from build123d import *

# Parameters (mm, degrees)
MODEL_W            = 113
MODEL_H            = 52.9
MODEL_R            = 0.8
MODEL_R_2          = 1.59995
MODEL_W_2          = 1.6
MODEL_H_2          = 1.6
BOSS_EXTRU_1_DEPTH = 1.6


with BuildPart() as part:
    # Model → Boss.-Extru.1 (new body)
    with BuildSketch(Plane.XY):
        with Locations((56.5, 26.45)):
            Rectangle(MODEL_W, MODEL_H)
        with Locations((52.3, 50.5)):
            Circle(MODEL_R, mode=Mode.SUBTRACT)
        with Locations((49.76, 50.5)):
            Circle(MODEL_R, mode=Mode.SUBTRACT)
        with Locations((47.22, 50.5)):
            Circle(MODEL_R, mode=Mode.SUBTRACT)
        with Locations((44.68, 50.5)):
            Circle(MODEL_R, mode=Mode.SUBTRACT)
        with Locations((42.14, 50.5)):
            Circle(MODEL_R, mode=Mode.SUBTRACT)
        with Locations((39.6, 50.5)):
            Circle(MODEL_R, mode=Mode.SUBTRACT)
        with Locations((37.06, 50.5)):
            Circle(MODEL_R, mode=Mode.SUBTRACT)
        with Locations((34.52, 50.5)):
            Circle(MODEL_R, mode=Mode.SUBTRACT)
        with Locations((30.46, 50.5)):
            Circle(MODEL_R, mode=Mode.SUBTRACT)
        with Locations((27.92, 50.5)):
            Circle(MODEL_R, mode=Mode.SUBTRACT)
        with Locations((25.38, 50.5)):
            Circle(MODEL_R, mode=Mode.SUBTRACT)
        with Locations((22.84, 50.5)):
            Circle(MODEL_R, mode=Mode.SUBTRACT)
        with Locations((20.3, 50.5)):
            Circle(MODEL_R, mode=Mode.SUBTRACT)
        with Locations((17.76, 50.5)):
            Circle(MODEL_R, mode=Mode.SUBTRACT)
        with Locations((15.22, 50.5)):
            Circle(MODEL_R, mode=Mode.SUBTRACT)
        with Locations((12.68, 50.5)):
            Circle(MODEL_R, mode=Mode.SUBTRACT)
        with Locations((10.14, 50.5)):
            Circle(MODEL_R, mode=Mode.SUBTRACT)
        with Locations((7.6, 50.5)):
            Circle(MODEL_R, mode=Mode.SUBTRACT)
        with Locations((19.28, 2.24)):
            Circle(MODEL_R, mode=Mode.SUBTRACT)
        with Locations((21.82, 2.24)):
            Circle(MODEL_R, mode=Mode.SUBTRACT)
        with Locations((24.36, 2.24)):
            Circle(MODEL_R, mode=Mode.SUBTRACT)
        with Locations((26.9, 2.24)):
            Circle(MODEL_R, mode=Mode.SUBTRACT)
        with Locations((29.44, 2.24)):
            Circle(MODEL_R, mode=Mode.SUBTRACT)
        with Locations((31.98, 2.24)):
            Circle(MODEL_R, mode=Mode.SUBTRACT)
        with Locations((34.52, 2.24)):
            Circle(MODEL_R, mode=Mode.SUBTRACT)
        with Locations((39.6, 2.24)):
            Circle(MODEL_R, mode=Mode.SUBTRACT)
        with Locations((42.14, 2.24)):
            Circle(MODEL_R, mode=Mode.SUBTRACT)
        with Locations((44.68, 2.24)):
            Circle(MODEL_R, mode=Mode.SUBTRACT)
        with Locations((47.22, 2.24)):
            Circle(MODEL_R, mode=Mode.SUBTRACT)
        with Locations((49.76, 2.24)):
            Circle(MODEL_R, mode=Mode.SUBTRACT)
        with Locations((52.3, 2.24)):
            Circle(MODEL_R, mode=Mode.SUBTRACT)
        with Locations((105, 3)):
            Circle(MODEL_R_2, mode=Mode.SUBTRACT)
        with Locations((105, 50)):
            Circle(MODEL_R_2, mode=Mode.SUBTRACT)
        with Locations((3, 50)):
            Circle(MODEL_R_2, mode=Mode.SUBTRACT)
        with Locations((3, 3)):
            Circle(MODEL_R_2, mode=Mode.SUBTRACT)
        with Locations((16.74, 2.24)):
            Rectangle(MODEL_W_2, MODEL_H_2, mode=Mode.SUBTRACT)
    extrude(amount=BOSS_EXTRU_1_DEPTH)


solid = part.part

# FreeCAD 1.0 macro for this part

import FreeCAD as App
import Part
import Sketcher
from FreeCAD import Vector
Q = App.Units.Quantity

doc = App.newDocument("Part")
body = doc.addObject("PartDesign::Body", "Body")

# Sketch on XY plane
sketch1 = doc.addObject("Sketcher::SketchObject", "Sketch")
body.addObject(sketch1)
sketch1.AttachmentSupport = (doc.XY_Plane, [""])
sketch1.MapMode = "FlatFace"
sketch1.addGeometry(Part.LineSegment(Vector(0, 52.9, 0), Vector(0, 0, 0)), False)
sketch1.addGeometry(Part.LineSegment(Vector(0, 0, 0), Vector(113, 0, 0)), False)
sketch1.addGeometry(Part.LineSegment(Vector(113, 0, 0), Vector(113, 52.9, 0)), False)
sketch1.addGeometry(Part.LineSegment(Vector(113, 52.9, 0), Vector(0, 52.9, 0)), False)
sketch1.addGeometry(Part.Circle(Vector(3, 3, 0), Vector(0, 0, 1), 1.6), False)
sketch1.addGeometry(Part.LineSegment(Vector(17.5, 1.4, 0), Vector(15.9, 1.4, 0)), False)
sketch1.addGeometry(Part.LineSegment(Vector(15.9, 1.4, 0), Vector(15.9, 3, 0)), False)
sketch1.addGeometry(Part.LineSegment(Vector(15.9, 3, 0), Vector(17.5, 3, 0)), False)
sketch1.addGeometry(Part.LineSegment(Vector(17.5, 3, 0), Vector(17.5, 1.4, 0)), False)
sketch1.addGeometry(Part.Circle(Vector(19.3, 2.2, 0), Vector(0, 0, 1), 0.8), False)
sketch1.addGeometry(Part.Circle(Vector(21.8, 2.2, 0), Vector(0, 0, 1), 0.8), False)
sketch1.addGeometry(Part.Circle(Vector(24.4, 2.2, 0), Vector(0, 0, 1), 0.8), False)
sketch1.addGeometry(Part.Circle(Vector(26.9, 2.2, 0), Vector(0, 0, 1), 0.8), False)
sketch1.addGeometry(Part.Circle(Vector(29.4, 2.2, 0), Vector(0, 0, 1), 0.8), False)
sketch1.addGeometry(Part.Circle(Vector(32, 2.2, 0), Vector(0, 0, 1), 0.8), False)
sketch1.addGeometry(Part.Circle(Vector(34.5, 2.2, 0), Vector(0, 0, 1), 0.8), False)
sketch1.addGeometry(Part.Circle(Vector(39.6, 2.2, 0), Vector(0, 0, 1), 0.8), False)
sketch1.addGeometry(Part.Circle(Vector(42.1, 2.2, 0), Vector(0, 0, 1), 0.8), False)
sketch1.addGeometry(Part.Circle(Vector(44.7, 2.2, 0), Vector(0, 0, 1), 0.8), False)
sketch1.addGeometry(Part.Circle(Vector(47.2, 2.2, 0), Vector(0, 0, 1), 0.8), False)
sketch1.addGeometry(Part.Circle(Vector(49.8, 2.2, 0), Vector(0, 0, 1), 0.8), False)
sketch1.addGeometry(Part.Circle(Vector(52.3, 2.2, 0), Vector(0, 0, 1), 0.8), False)
sketch1.addGeometry(Part.Circle(Vector(105, 3, 0), Vector(0, 0, 1), 1.6), False)
sketch1.addGeometry(Part.Circle(Vector(3, 50, 0), Vector(0, 0, 1), 1.6), False)
sketch1.addGeometry(Part.Circle(Vector(7.6, 50.5, 0), Vector(0, 0, 1), 0.8), False)
sketch1.addGeometry(Part.Circle(Vector(10.1, 50.5, 0), Vector(0, 0, 1), 0.8), False)
sketch1.addGeometry(Part.Circle(Vector(12.7, 50.5, 0), Vector(0, 0, 1), 0.8), False)
sketch1.addGeometry(Part.Circle(Vector(15.2, 50.5, 0), Vector(0, 0, 1), 0.8), False)
sketch1.addGeometry(Part.Circle(Vector(17.8, 50.5, 0), Vector(0, 0, 1), 0.8), False)
sketch1.addGeometry(Part.Circle(Vector(20.3, 50.5, 0), Vector(0, 0, 1), 0.8), False)
sketch1.addGeometry(Part.Circle(Vector(22.8, 50.5, 0), Vector(0, 0, 1), 0.8), False)
sketch1.addGeometry(Part.Circle(Vector(25.4, 50.5, 0), Vector(0, 0, 1), 0.8), False)
sketch1.addGeometry(Part.Circle(Vector(27.9, 50.5, 0), Vector(0, 0, 1), 0.8), False)
sketch1.addGeometry(Part.Circle(Vector(30.5, 50.5, 0), Vector(0, 0, 1), 0.8), False)
sketch1.addGeometry(Part.Circle(Vector(34.5, 50.5, 0), Vector(0, 0, 1), 0.8), False)
sketch1.addGeometry(Part.Circle(Vector(37.1, 50.5, 0), Vector(0, 0, 1), 0.8), False)
sketch1.addGeometry(Part.Circle(Vector(39.6, 50.5, 0), Vector(0, 0, 1), 0.8), False)
sketch1.addGeometry(Part.Circle(Vector(42.1, 50.5, 0), Vector(0, 0, 1), 0.8), False)
sketch1.addGeometry(Part.Circle(Vector(44.7, 50.5, 0), Vector(0, 0, 1), 0.8), False)
sketch1.addGeometry(Part.Circle(Vector(47.2, 50.5, 0), Vector(0, 0, 1), 0.8), False)
sketch1.addGeometry(Part.Circle(Vector(49.8, 50.5, 0), Vector(0, 0, 1), 0.8), False)
sketch1.addGeometry(Part.Circle(Vector(52.3, 50.5, 0), Vector(0, 0, 1), 0.8), False)
sketch1.addGeometry(Part.Circle(Vector(105, 50, 0), Vector(0, 0, 1), 1.6), False)
sketch1.addConstraint(Sketcher.Constraint("Coincident", 0, 2, 1, 1))
sketch1.addConstraint(Sketcher.Constraint("Coincident", 1, 2, 2, 1))
sketch1.addConstraint(Sketcher.Constraint("Coincident", 2, 2, 3, 1))
sketch1.addConstraint(Sketcher.Constraint("Coincident", 3, 2, 0, 1))
sketch1.addConstraint(Sketcher.Constraint("Coincident", 5, 2, 6, 1))
sketch1.addConstraint(Sketcher.Constraint("Coincident", 6, 2, 7, 1))
sketch1.addConstraint(Sketcher.Constraint("Coincident", 7, 2, 8, 1))
sketch1.addConstraint(Sketcher.Constraint("Coincident", 8, 2, 5, 1))
sketch1.addConstraint(Sketcher.Constraint("Vertical", 0))
sketch1.addConstraint(Sketcher.Constraint("Horizontal", 1))
sketch1.addConstraint(Sketcher.Constraint("Vertical", 2))
sketch1.addConstraint(Sketcher.Constraint("Horizontal", 3))
sketch1.addConstraint(Sketcher.Constraint("Horizontal", 5))
sketch1.addConstraint(Sketcher.Constraint("Vertical", 6))
sketch1.addConstraint(Sketcher.Constraint("Horizontal", 7))
sketch1.addConstraint(Sketcher.Constraint("Vertical", 8))
sketch1.addConstraint(Sketcher.Constraint("Coincident", 0, 2, -1, 1))
sketch1.addConstraint(Sketcher.Constraint("Equal", 9, 10))
sketch1.addConstraint(Sketcher.Constraint("Equal", 10, 11))
sketch1.addConstraint(Sketcher.Constraint("Equal", 11, 12))
sketch1.addConstraint(Sketcher.Constraint("Equal", 12, 13))
sketch1.addConstraint(Sketcher.Constraint("Equal", 13, 14))
sketch1.addConstraint(Sketcher.Constraint("Equal", 14, 15))
sketch1.addConstraint(Sketcher.Constraint("Equal", 15, 16))
sketch1.addConstraint(Sketcher.Constraint("Equal", 16, 17))
sketch1.addConstraint(Sketcher.Constraint("Equal", 17, 18))
sketch1.addConstraint(Sketcher.Constraint("Equal", 18, 19))
sketch1.addConstraint(Sketcher.Constraint("Equal", 19, 20))
sketch1.addConstraint(Sketcher.Constraint("Equal", 20, 21))
sketch1.addConstraint(Sketcher.Constraint("Equal", 4, 22))
sketch1.addConstraint(Sketcher.Constraint("Equal", 22, 23))
sketch1.addConstraint(Sketcher.Constraint("Equal", 21, 24))
sketch1.addConstraint(Sketcher.Constraint("Equal", 24, 25))
sketch1.addConstraint(Sketcher.Constraint("Equal", 25, 26))
sketch1.addConstraint(Sketcher.Constraint("Equal", 26, 27))
sketch1.addConstraint(Sketcher.Constraint("Equal", 27, 28))
sketch1.addConstraint(Sketcher.Constraint("Equal", 28, 29))
sketch1.addConstraint(Sketcher.Constraint("Equal", 29, 30))
sketch1.addConstraint(Sketcher.Constraint("Equal", 30, 31))
sketch1.addConstraint(Sketcher.Constraint("Equal", 31, 32))
sketch1.addConstraint(Sketcher.Constraint("Equal", 32, 33))
sketch1.addConstraint(Sketcher.Constraint("Equal", 33, 34))
sketch1.addConstraint(Sketcher.Constraint("Equal", 34, 35))
sketch1.addConstraint(Sketcher.Constraint("Equal", 35, 36))
sketch1.addConstraint(Sketcher.Constraint("Equal", 36, 37))
sketch1.addConstraint(Sketcher.Constraint("Equal", 37, 38))
sketch1.addConstraint(Sketcher.Constraint("Equal", 38, 39))
sketch1.addConstraint(Sketcher.Constraint("Equal", 39, 40))
sketch1.addConstraint(Sketcher.Constraint("Equal", 40, 41))
sketch1.addConstraint(Sketcher.Constraint("Equal", 23, 42))
sketch1.addConstraint(Sketcher.Constraint("Horizontal", 9, 3, 10, 3))
sketch1.addConstraint(Sketcher.Constraint("Horizontal", 10, 3, 11, 3))
sketch1.addConstraint(Sketcher.Constraint("Horizontal", 11, 3, 12, 3))
sketch1.addConstraint(Sketcher.Constraint("Horizontal", 12, 3, 13, 3))
sketch1.addConstraint(Sketcher.Constraint("Horizontal", 13, 3, 14, 3))
sketch1.addConstraint(Sketcher.Constraint("Horizontal", 14, 3, 15, 3))
sketch1.addConstraint(Sketcher.Constraint("Horizontal", 15, 3, 16, 3))
sketch1.addConstraint(Sketcher.Constraint("Horizontal", 16, 3, 17, 3))
sketch1.addConstraint(Sketcher.Constraint("Horizontal", 17, 3, 18, 3))
sketch1.addConstraint(Sketcher.Constraint("Horizontal", 18, 3, 19, 3))
sketch1.addConstraint(Sketcher.Constraint("Horizontal", 19, 3, 20, 3))
sketch1.addConstraint(Sketcher.Constraint("Horizontal", 20, 3, 21, 3))
sketch1.addConstraint(Sketcher.Constraint("Horizontal", 4, 3, 22, 3))
sketch1.addConstraint(Sketcher.Constraint("Horizontal", 24, 3, 25, 3))
sketch1.addConstraint(Sketcher.Constraint("Horizontal", 25, 3, 26, 3))
sketch1.addConstraint(Sketcher.Constraint("Horizontal", 26, 3, 27, 3))
sketch1.addConstraint(Sketcher.Constraint("Horizontal", 27, 3, 28, 3))
sketch1.addConstraint(Sketcher.Constraint("Horizontal", 28, 3, 29, 3))
sketch1.addConstraint(Sketcher.Constraint("Horizontal", 29, 3, 30, 3))
sketch1.addConstraint(Sketcher.Constraint("Horizontal", 30, 3, 31, 3))
sketch1.addConstraint(Sketcher.Constraint("Horizontal", 31, 3, 32, 3))
sketch1.addConstraint(Sketcher.Constraint("Horizontal", 32, 3, 33, 3))
sketch1.addConstraint(Sketcher.Constraint("Horizontal", 33, 3, 34, 3))
sketch1.addConstraint(Sketcher.Constraint("Horizontal", 34, 3, 35, 3))
sketch1.addConstraint(Sketcher.Constraint("Horizontal", 35, 3, 36, 3))
sketch1.addConstraint(Sketcher.Constraint("Horizontal", 36, 3, 37, 3))
sketch1.addConstraint(Sketcher.Constraint("Horizontal", 37, 3, 38, 3))
sketch1.addConstraint(Sketcher.Constraint("Horizontal", 38, 3, 39, 3))
sketch1.addConstraint(Sketcher.Constraint("Horizontal", 39, 3, 40, 3))
sketch1.addConstraint(Sketcher.Constraint("Horizontal", 40, 3, 41, 3))
sketch1.addConstraint(Sketcher.Constraint("Horizontal", 23, 3, 42, 3))
sketch1.addConstraint(Sketcher.Constraint("Vertical", 4, 3, 23, 3))
sketch1.addConstraint(Sketcher.Constraint("Vertical", 15, 3, 34, 3))
sketch1.addConstraint(Sketcher.Constraint("Vertical", 16, 3, 36, 3))
sketch1.addConstraint(Sketcher.Constraint("Vertical", 17, 3, 37, 3))
sketch1.addConstraint(Sketcher.Constraint("Vertical", 18, 3, 38, 3))
sketch1.addConstraint(Sketcher.Constraint("Vertical", 19, 3, 39, 3))
sketch1.addConstraint(Sketcher.Constraint("Vertical", 20, 3, 40, 3))
sketch1.addConstraint(Sketcher.Constraint("Vertical", 21, 3, 41, 3))
sketch1.addConstraint(Sketcher.Constraint("Vertical", 22, 3, 42, 3))
sketch1.addConstraint(Sketcher.Constraint("Equal", 7, 6))
sketch1.addConstraint(Sketcher.Constraint("Diameter", 9, Q("1.6 mm")))
sketch1.addConstraint(Sketcher.Constraint("DistanceX", 1, 1, 1, 2, Q("113 mm")))
sketch1.addConstraint(Sketcher.Constraint("DistanceX", 5, 2, 5, 1, Q("1.6 mm")))
sketch1.addConstraint(Sketcher.Constraint("DistanceY", 0, 2, 0, 1, Q("52.9 mm")))
sketch1.addConstraint(Sketcher.Constraint("DistanceX", -1, 1, 4, 3, Q("3 mm")))
sketch1.addConstraint(Sketcher.Constraint("DistanceY", -1, 1, 4, 3, Q("3 mm")))
sketch1.addConstraint(Sketcher.Constraint("DistanceX", -1, 1, 22, 3, Q("105 mm")))
sketch1.addConstraint(Sketcher.Constraint("DistanceY", -1, 1, 23, 3, Q("50 mm")))
sketch1.addConstraint(Sketcher.Constraint("Diameter", 4, Q("3.1999 mm")))
sketch1.addConstraint(Sketcher.Constraint("DistanceX", -1, 1, 12, 3, Q("26.9 mm")))
sketch1.addConstraint(Sketcher.Constraint("DistanceX", -1, 1, 16, 3, Q("39.6 mm")))
sketch1.addConstraint(Sketcher.Constraint("DistanceX", -1, 1, 21, 3, Q("52.3 mm")))
sketch1.addConstraint(Sketcher.Constraint("DistanceX", -1, 1, 24, 3, Q("7.6 mm")))
sketch1.addConstraint(Sketcher.Constraint("DistanceY", -1, 1, 24, 3, Q("50.5 mm")))
sketch1.addConstraint(Sketcher.Constraint("DistanceX", -1, 1, 29, 3, Q("20.3 mm")))
sketch1.addConstraint(Sketcher.Constraint("DistanceX", 9, 3, 14, 3, Q("12.7 mm")))
sketch1.addConstraint(Sketcher.Constraint("DistanceX", 10, 3, 15, 3, Q("12.7 mm")))
sketch1.addConstraint(Sketcher.Constraint("DistanceX", 13, 3, 17, 3, Q("12.7 mm")))
sketch1.addConstraint(Sketcher.Constraint("DistanceX", 14, 3, 18, 3, Q("12.7 mm")))
sketch1.addConstraint(Sketcher.Constraint("DistanceX", 15, 3, 19, 3, Q("12.7 mm")))
sketch1.addConstraint(Sketcher.Constraint("DistanceX", 26, 3, 9, 3, Q("6.6 mm")))
sketch1.addConstraint(Sketcher.Constraint("DistanceX", 25, 3, 30, 3, Q("12.7 mm")))
sketch1.addConstraint(Sketcher.Constraint("DistanceX", 26, 3, 31, 3, Q("12.7 mm")))
sketch1.addConstraint(Sketcher.Constraint("DistanceX", 27, 3, 32, 3, Q("12.7 mm")))
sketch1.addConstraint(Sketcher.Constraint("DistanceX", 28, 3, 33, 3, Q("12.7 mm")))
sketch1.addConstraint(Sketcher.Constraint("DistanceX", 32, 3, 34, 3, Q("6.6 mm")))
sketch1.addConstraint(Sketcher.Constraint("DistanceX", 33, 3, 35, 3, Q("6.6 mm")))
sketch1.addConstraint(Sketcher.Constraint("DistanceX", 35, 3, 40, 3, Q("12.7 mm")))
sketch1.addConstraint(Sketcher.Constraint("DistanceY", 5, 2, 9, 3, Q("0.8 mm")))
sketch1.addConstraint(Sketcher.Constraint("DistanceX", -1, 1, 9, 3, Q("19.28 mm")))
sketch1.addConstraint(Sketcher.Constraint("DistanceY", -1, 1, 9, 3, Q("2.24 mm")))
sketch1.addConstraint(Sketcher.Constraint("DistanceX", -1, 1, 10, 3, Q("21.82 mm")))
sketch1.addConstraint(Sketcher.Constraint("DistanceX", -1, 1, 11, 3, Q("24.36 mm")))
sketch1.addConstraint(Sketcher.Constraint("DistanceX", -1, 1, 13, 3, Q("29.44 mm")))
sketch1.addConstraint(Sketcher.Constraint("DistanceX", -1, 1, 20, 3, Q("49.76 mm")))
sketch1.addConstraint(Sketcher.Constraint("DistanceX", -1, 1, 25, 3, Q("10.14 mm")))
sketch1.addConstraint(Sketcher.Constraint("DistanceX", -1, 1, 5, 2, Q("15.94 mm")))
pad1 = doc.addObject("PartDesign::Pad", "Pad")
body.addObject(pad1)
pad1.Profile = sketch1
pad1.Length = 1.6

doc.recompute()
